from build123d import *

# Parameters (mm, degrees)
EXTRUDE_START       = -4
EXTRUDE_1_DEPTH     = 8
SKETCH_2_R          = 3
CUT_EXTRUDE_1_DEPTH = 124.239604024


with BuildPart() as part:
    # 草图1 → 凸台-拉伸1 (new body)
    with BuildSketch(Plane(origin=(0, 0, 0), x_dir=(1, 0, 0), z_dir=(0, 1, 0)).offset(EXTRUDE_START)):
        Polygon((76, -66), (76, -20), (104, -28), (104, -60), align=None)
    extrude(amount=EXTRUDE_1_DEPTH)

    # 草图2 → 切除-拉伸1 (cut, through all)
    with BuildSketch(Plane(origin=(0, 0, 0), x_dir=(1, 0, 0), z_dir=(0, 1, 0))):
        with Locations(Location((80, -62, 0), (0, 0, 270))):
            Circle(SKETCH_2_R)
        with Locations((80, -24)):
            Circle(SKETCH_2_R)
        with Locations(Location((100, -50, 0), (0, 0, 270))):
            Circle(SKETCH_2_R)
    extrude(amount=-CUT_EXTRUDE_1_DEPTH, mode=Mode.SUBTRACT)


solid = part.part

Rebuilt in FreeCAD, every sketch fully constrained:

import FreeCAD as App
import Part
import Sketcher
from FreeCAD import Vector

doc = App.newDocument("Part")
body = doc.addObject("PartDesign::Body", "Body")

sketch1 = body.newObject("Sketcher::SketchObject", "Sketch")
sketch1.AttachmentSupport = (doc.getObject("XZ_Plane"), [""])
sketch1.MapMode = "FlatFace"
sketch1.AttachmentOffset = App.Placement(Vector(0, 0, 4), App.Rotation())
sketch1.addGeometry([
    Part.LineSegment(Vector(76, 20, 0), Vector(76, 66, 0)),
    Part.LineSegment(Vector(76, 66, 0), Vector(104, 60, 0)),
    Part.LineSegment(Vector(104, 60, 0), Vector(104, 28, 0)),
    Part.LineSegment(Vector(104, 28, 0), Vector(76, 20, 0)),
], False)
sketch1.addConstraint([
    Sketcher.Constraint("Coincident", 0, 2, 1, 1),
    Sketcher.Constraint("Coincident", 1, 2, 2, 1),
    Sketcher.Constraint("Coincident", 2, 2, 3, 1),
    Sketcher.Constraint("Coincident", 3, 2, 0, 1),
    Sketcher.Constraint("Vertical", 0),
    Sketcher.Constraint("Vertical", 2),
    Sketcher.Constraint("DistanceY", 0, 1, 0, 2, 46.0),
    Sketcher.Constraint("DistanceY", 2, 2, 2, 1, 32.0),
    Sketcher.Constraint("DistanceX", -1, 1, 0, 2, 76.0),
    Sketcher.Constraint("DistanceY", -1, 1, 0, 2, 66.0),
    Sketcher.Constraint("DistanceX", -1, 1, 1, 2, 104.0),
    Sketcher.Constraint("DistanceY", -1, 1, 1, 2, 60.0),
])
pad1 = body.newObject("PartDesign::Pad", "Pad")
pad1.Profile = sketch1
pad1.Length = 8
pad1.Reversed = True

sketch2 = body.newObject("Sketcher::SketchObject", "Sketch001")
sketch2.AttachmentSupport = (doc.getObject("XZ_Plane"), [""])
sketch2.MapMode = "FlatFace"
sketch2.addGeometry([
    Part.Circle(Vector(80, 62, 0), Vector(0, 0, 1), 3),
    Part.Circle(Vector(80, 24, 0), Vector(0, 0, 1), 3),
    Part.Circle(Vector(100, 50, 0), Vector(0, 0, 1), 3),
], False)
sketch2.addConstraint([
    Sketcher.Constraint("Equal", 0, 1),
    Sketcher.Constraint("Equal", 1, 2),
    Sketcher.Constraint("Vertical", 0, 3, 1, 3),
    Sketcher.Constraint("Diameter", 0, 6.0),
    Sketcher.Constraint("DistanceX", -1, 1, 0, 3, 80.0),
    Sketcher.Constraint("DistanceY", -1, 1, 0, 3, 62.0),
    Sketcher.Constraint("DistanceY", -1, 1, 1, 3, 24.0),
    Sketcher.Constraint("DistanceX", -1, 1, 2, 3, 100.0),
    Sketcher.Constraint("DistanceY", -1, 1, 2, 3, 50.0),
])
pocket1 = body.newObject("PartDesign::Pocket", "Pocket")
pocket1.Profile = sketch2
pocket1.Type = "ThroughAll"
pocket1.Reversed = True

doc.recompute()
